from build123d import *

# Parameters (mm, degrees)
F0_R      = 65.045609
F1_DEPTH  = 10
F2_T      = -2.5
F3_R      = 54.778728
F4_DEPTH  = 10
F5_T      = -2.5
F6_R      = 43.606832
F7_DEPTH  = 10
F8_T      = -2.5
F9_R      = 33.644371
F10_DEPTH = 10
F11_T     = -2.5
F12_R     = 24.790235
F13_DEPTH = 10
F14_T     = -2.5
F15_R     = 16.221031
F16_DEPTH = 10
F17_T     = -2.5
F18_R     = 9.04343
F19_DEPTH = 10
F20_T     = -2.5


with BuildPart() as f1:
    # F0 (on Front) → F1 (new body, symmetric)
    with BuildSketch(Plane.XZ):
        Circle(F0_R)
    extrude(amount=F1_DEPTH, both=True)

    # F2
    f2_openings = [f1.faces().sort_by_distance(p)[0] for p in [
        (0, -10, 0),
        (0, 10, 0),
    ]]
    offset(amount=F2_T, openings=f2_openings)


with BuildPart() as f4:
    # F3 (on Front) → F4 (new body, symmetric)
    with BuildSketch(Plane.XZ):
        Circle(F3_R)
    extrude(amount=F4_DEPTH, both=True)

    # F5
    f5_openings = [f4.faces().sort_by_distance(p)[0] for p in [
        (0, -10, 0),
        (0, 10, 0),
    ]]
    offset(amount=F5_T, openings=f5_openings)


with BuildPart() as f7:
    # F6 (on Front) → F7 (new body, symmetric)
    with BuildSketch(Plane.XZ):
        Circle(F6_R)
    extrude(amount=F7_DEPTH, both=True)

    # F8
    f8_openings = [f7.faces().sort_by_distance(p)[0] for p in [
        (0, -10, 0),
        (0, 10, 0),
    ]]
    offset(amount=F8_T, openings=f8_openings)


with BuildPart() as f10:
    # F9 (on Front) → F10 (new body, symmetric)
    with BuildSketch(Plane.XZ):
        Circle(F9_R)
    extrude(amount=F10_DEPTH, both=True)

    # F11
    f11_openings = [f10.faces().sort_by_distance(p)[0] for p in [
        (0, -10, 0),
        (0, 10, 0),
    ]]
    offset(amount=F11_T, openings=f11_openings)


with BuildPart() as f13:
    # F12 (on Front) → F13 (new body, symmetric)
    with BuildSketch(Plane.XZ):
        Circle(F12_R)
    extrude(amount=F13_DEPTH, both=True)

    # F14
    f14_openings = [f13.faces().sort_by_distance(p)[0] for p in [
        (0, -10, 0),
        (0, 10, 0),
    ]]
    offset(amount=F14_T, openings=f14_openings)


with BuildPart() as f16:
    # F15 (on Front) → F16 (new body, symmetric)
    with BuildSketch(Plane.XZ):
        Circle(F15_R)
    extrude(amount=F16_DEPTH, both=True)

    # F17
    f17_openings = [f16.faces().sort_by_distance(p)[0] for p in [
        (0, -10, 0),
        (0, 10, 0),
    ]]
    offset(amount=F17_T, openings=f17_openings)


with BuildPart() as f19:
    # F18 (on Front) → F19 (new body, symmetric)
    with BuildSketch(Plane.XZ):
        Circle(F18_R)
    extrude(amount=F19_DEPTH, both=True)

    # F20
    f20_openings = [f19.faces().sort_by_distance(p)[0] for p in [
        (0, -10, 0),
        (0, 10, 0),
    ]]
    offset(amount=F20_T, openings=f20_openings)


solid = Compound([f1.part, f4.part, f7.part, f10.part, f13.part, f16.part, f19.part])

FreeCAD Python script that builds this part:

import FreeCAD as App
import Part
import Sketcher
from FreeCAD import Vector
Q = App.Units.Quantity


def faces_at(feature, points):
    """Names of the faces that lie closest to the given points."""
    faces = feature.Shape.Faces
    near = lambda p: min(range(len(faces)), key=lambda i: faces[i].distToShape(Part.Vertex(*p))[0])
    return sorted({f"Face{near(p) + 1}" for p in points})

doc = App.newDocument("Part")
body = doc.addObject("PartDesign::Body", "Body")

sketch1 = doc.addObject("Sketcher::SketchObject", "Sketch")
body.addObject(sketch1)
sketch1.AttachmentSupport = (doc.XZ_Plane, [""])
sketch1.MapMode = "FlatFace"
sketch1.addGeometry(Part.Circle(Vector(0, 0, 0), Vector(0, 0, 1), 65.045609), False)
sketch1.addConstraint([
    Sketcher.Constraint("Coincident", 0, 3, -1, 1),
    Sketcher.Constraint("Diameter", 0, Q("130.091218 mm")),
])
pad1 = doc.addObject("PartDesign::Pad", "Pad")
body.addObject(pad1)
pad1.Profile = sketch1
pad1.Length = 20
pad1.Midplane = True
doc.recompute()

thickness = doc.addObject("PartDesign::Thickness", "Thickness")
body.addObject(thickness)
thickness.Base = (pad1, faces_at(pad1, [(0, -10, 0), (0, 10, 0)]))
thickness.Value = 2.5
thickness.Reversed = True
thickness.Join = "Arc"
body2 = doc.addObject("PartDesign::Body", "Body001")

sketch2 = doc.addObject("Sketcher::SketchObject", "Sketch001")
body2.addObject(sketch2)
sketch2.AttachmentSupport = (doc.getObject("XZ_Plane001"), [""])
sketch2.MapMode = "FlatFace"
sketch2.addGeometry(Part.Circle(Vector(0, 0, 0), Vector(0, 0, 1), 54.778728), False)
sketch2.addConstraint([
    Sketcher.Constraint("Coincident", 0, 3, -1, 1),
    Sketcher.Constraint("Diameter", 0, Q("109.557456 mm")),
])
pad2 = doc.addObject("PartDesign::Pad", "Pad001")
body2.addObject(pad2)
pad2.Profile = sketch2
pad2.Length = 20
pad2.Midplane = True
doc.recompute()

thickness2 = doc.addObject("PartDesign::Thickness", "Thickness001")
body2.addObject(thickness2)
thickness2.Base = (pad2, faces_at(pad2, [(0, -10, 0), (0, 10, 0)]))
thickness2.Value = 2.5
thickness2.Reversed = True
thickness2.Join = "Arc"
body3 = doc.addObject("PartDesign::Body", "Body002")

sketch3 = doc.addObject("Sketcher::SketchObject", "Sketch002")
body3.addObject(sketch3)
sketch3.AttachmentSupport = (doc.getObject("XZ_Plane002"), [""])
sketch3.MapMode = "FlatFace"
sketch3.addGeometry(Part.Circle(Vector(0, 0, 0), Vector(0, 0, 1), 43.606832), False)
sketch3.addConstraint([
    Sketcher.Constraint("Coincident", 0, 3, -1, 1),
    Sketcher.Constraint("Diameter", 0, Q("87.213664 mm")),
])
pad3 = doc.addObject("PartDesign::Pad", "Pad002")
body3.addObject(pad3)
pad3.Profile = sketch3
pad3.Length = 20
pad3.Midplane = True
doc.recompute()

thickness3 = doc.addObject("PartDesign::Thickness", "Thickness002")
body3.addObject(thickness3)
thickness3.Base = (pad3, faces_at(pad3, [(0, -10, 0), (0, 10, 0)]))
thickness3.Value = 2.5
thickness3.Reversed = True
thickness3.Join = "Arc"
body4 = doc.addObject("PartDesign::Body", "Body003")

sketch4 = doc.addObject("Sketcher::SketchObject", "Sketch003")
body4.addObject(sketch4)
sketch4.AttachmentSupport = (doc.getObject("XZ_Plane003"), [""])
sketch4.MapMode = "FlatFace"
sketch4.addGeometry(Part.Circle(Vector(0, 0, 0), Vector(0, 0, 1), 33.644371), False)
sketch4.addConstraint([
    Sketcher.Constraint("Coincident", 0, 3, -1, 1),
    Sketcher.Constraint("Diameter", 0, Q("67.288742 mm")),
])
pad4 = doc.addObject("PartDesign::Pad", "Pad003")
body4.addObject(pad4)
pad4.Profile = sketch4
pad4.Length = 20
pad4.Midplane = True
doc.recompute()

thickness4 = doc.addObject("PartDesign::Thickness", "Thickness003")
body4.addObject(thickness4)
thickness4.Base = (pad4, faces_at(pad4, [(0, -10, 0), (0, 10, 0)]))
thickness4.Value = 2.5
thickness4.Reversed = True
thickness4.Join = "Arc"
body5 = doc.addObject("PartDesign::Body", "Body004")

sketch5 = doc.addObject("Sketcher::SketchObject", "Sketch004")
body5.addObject(sketch5)
sketch5.AttachmentSupport = (doc.getObject("XZ_Plane004"), [""])
sketch5.MapMode = "FlatFace"
sketch5.addGeometry(Part.Circle(Vector(0, 0, 0), Vector(0, 0, 1), 24.790235), False)
sketch5.addConstraint([
    Sketcher.Constraint("Coincident", 0, 3, -1, 1),
    Sketcher.Constraint("Diameter", 0, Q("49.58047 mm")),
])
pad5 = doc.addObject("PartDesign::Pad", "Pad004")
body5.addObject(pad5)
pad5.Profile = sketch5
pad5.Length = 20
pad5.Midplane = True
doc.recompute()

thickness5 = doc.addObject("PartDesign::Thickness", "Thickness004")
body5.addObject(thickness5)
thickness5.Base = (pad5, faces_at(pad5, [(0, -10, 0), (0, 10, 0)]))
thickness5.Value = 2.5
thickness5.Reversed = True
thickness5.Join = "Arc"
body6 = doc.addObject("PartDesign::Body", "Body005")

sketch6 = doc.addObject("Sketcher::SketchObject", "Sketch005")
body6.addObject(sketch6)
sketch6.AttachmentSupport = (doc.getObject("XZ_Plane005"), [""])
sketch6.MapMode = "FlatFace"
sketch6.addGeometry(Part.Circle(Vector(0, 0, 0), Vector(0, 0, 1), 16.221031), False)
sketch6.addConstraint([
    Sketcher.Constraint("Coincident", 0, 3, -1, 1),
    Sketcher.Constraint("Diameter", 0, Q("32.442062 mm")),
])
pad6 = doc.addObject("PartDesign::Pad", "Pad005")
body6.addObject(pad6)
pad6.Profile = sketch6
pad6.Length = 20
pad6.Midplane = True
doc.recompute()

thickness6 = doc.addObject("PartDesign::Thickness", "Thickness005")
body6.addObject(thickness6)
thickness6.Base = (pad6, faces_at(pad6, [(0, -10, 0), (0, 10, 0)]))
thickness6.Value = 2.5
thickness6.Reversed = True
thickness6.Join = "Arc"
body7 = doc.addObject("PartDesign::Body", "Body006")

sketch7 = doc.addObject("Sketcher::SketchObject", "Sketch006")
body7.addObject(sketch7)
sketch7.AttachmentSupport = (doc.getObject("XZ_Plane006"), [""])
sketch7.MapMode = "FlatFace"
sketch7.addGeometry(Part.Circle(Vector(0, 0, 0), Vector(0, 0, 1), 9.04343), False)
sketch7.addConstraint([
    Sketcher.Constraint("Coincident", 0, 3, -1, 1),
    Sketcher.Constraint("Diameter", 0, Q("18.08686 mm")),
])
pad7 = doc.addObject("PartDesign::Pad", "Pad006")
body7.addObject(pad7)
pad7.Profile = sketch7
pad7.Length = 20
pad7.Midplane = True
doc.recompute()

thickness7 = doc.addObject("PartDesign::Thickness", "Thickness006")
body7.addObject(thickness7)
thickness7.Base = (pad7, faces_at(pad7, [(0, -10, 0), (0, 10, 0)]))
thickness7.Value = 2.5
thickness7.Reversed = True
thickness7.Join = "Arc"

doc.recompute()
